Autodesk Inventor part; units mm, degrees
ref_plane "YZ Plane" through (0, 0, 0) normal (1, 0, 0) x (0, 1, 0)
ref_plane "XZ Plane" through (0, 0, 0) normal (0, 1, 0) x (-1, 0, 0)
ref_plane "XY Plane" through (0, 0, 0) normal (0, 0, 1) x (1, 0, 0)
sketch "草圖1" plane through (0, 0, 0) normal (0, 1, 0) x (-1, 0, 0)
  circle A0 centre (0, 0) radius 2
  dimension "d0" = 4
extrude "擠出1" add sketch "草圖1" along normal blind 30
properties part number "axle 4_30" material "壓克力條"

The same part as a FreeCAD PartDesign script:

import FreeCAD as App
import Part
import Sketcher

doc = App.newDocument("Part")
body = doc.addObject("PartDesign::Body", "Body")

# Sketch on XZ plane
sketch1 = body.newObject("Sketcher::SketchObject", "Sketch")
sketch1.AttachmentSupport = (doc.getObject("XZ_Plane"), [""])
sketch1.MapMode = "FlatFace"
sketch1.addGeometry(Part.Circle(App.Vector(0, 0, 0), App.Vector(0, 0, 1), 2), False)
sketch1.addConstraint([
    Sketcher.Constraint("Coincident", 0, 3, -1, 1),
    Sketcher.Constraint("Diameter", 0, 4.0),
])
pad1 = body.newObject("PartDesign::Pad", "Pad")
pad1.Profile = sketch1
pad1.Length = 30
pad1.Reversed = True

doc.recompute()
